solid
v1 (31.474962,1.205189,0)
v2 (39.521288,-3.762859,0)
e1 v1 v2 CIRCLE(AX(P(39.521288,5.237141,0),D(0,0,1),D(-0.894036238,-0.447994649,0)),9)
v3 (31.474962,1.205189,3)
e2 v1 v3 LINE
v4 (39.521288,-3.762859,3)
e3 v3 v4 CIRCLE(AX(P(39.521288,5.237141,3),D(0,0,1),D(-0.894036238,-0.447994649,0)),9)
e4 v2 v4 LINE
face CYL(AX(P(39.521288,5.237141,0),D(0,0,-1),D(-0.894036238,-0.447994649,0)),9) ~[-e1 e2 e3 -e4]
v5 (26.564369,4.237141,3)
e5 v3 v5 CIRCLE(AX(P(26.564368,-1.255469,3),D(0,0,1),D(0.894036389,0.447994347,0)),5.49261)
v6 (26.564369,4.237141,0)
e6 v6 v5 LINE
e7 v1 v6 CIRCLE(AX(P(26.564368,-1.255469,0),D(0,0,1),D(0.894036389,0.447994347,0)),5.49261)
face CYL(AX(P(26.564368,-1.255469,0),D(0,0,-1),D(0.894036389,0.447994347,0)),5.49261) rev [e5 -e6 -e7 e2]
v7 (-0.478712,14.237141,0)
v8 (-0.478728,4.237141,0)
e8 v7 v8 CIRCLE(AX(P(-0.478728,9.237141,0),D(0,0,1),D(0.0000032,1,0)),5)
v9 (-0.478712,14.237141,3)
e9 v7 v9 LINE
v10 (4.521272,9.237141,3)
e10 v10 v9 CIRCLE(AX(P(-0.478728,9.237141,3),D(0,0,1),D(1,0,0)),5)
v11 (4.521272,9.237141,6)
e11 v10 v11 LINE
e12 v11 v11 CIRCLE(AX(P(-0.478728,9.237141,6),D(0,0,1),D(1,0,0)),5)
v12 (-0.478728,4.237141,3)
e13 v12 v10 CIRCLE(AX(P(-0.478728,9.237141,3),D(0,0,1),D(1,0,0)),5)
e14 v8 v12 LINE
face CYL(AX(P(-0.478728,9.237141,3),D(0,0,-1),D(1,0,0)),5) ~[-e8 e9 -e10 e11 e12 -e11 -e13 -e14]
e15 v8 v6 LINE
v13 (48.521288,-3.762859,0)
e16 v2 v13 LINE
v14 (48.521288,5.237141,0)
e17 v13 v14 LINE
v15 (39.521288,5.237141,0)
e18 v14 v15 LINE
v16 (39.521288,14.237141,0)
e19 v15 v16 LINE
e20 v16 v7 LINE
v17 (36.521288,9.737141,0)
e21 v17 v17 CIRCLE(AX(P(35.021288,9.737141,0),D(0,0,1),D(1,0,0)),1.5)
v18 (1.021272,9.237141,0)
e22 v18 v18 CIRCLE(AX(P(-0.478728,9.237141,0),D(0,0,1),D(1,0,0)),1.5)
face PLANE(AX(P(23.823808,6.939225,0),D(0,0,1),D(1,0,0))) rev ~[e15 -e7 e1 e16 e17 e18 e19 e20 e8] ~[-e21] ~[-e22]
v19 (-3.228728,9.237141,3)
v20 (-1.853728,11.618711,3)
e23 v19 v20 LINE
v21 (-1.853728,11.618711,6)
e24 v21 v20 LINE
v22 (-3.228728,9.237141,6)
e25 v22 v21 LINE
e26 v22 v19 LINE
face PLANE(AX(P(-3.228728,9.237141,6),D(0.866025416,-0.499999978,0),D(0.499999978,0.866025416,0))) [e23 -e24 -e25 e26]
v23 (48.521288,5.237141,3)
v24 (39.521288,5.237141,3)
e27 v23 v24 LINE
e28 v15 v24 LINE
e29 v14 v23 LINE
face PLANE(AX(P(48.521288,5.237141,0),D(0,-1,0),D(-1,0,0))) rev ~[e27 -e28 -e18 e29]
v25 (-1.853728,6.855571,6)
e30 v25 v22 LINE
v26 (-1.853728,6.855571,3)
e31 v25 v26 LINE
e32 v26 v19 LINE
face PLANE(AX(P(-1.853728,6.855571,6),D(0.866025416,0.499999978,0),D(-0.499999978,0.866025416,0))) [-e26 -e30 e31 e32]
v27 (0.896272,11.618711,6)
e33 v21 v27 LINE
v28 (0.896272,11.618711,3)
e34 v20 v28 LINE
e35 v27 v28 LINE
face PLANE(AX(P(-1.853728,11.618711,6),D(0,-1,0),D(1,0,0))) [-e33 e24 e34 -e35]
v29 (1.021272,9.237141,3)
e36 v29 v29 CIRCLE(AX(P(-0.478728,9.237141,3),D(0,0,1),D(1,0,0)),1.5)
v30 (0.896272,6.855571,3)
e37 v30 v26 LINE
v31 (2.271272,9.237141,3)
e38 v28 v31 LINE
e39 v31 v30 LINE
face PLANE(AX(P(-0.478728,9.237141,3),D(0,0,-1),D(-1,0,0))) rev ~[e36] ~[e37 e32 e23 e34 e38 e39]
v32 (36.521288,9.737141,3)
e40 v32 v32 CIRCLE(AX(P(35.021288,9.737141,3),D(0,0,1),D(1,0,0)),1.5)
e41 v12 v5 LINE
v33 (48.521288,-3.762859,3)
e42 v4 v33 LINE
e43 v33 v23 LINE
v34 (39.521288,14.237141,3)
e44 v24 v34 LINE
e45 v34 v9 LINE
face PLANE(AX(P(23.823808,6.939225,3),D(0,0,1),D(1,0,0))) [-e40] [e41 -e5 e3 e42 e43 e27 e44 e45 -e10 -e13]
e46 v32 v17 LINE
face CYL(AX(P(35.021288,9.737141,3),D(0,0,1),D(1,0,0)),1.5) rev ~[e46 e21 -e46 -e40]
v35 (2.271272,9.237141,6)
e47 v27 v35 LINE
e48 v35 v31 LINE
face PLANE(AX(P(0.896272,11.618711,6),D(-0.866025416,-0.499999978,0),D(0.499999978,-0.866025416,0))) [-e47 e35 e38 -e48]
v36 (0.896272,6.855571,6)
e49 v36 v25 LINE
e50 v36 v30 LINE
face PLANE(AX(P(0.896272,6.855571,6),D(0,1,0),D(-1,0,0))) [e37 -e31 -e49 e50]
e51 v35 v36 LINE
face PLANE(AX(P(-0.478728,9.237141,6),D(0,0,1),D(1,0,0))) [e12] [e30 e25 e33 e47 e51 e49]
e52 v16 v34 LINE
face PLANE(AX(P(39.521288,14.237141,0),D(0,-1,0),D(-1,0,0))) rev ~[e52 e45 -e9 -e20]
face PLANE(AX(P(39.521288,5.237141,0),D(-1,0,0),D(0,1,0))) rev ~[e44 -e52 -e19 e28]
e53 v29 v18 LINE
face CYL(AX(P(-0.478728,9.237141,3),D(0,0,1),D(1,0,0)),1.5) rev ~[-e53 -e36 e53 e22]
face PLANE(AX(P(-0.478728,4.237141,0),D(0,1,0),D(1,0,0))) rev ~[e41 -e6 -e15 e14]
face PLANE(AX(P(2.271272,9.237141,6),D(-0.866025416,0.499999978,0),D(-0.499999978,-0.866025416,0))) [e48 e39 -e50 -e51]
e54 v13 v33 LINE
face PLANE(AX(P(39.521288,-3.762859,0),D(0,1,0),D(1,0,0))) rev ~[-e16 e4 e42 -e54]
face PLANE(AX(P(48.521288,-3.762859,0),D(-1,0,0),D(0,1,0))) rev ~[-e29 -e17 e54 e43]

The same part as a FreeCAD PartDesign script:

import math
import FreeCAD as App
import Part
import Sketcher
Q = App.Units.Quantity

doc = App.newDocument("Part")
body = doc.addObject("PartDesign::Body", "Body")

# Sketch on XY plane
sketch1 = doc.addObject("Sketcher::SketchObject", "Sketch")
body.addObject(sketch1)
sketch1.AttachmentSupport = (doc.XY_Plane, [""])
sketch1.MapMode = "FlatFace"
sketch1.addGeometry([
    Part.LineSegment(App.Vector(48.521288, 5.237141, 0), App.Vector(39.521288, 5.237141, 0)),  # 0
    Part.LineSegment(App.Vector(39.521288, 5.237141, 0), App.Vector(39.521288, 14.237141, 0)),  # 1
    Part.LineSegment(App.Vector(39.521288, 14.237141, 0), App.Vector(-0.478712, 14.237141, 0)),  # 2
    Part.ArcOfCircle(Part.Circle(App.Vector(-0.478728, 9.237141, 0), App.Vector(0, 0, 1), 5), math.radians(89.999817), math.radians(270)),  # 3
    Part.LineSegment(App.Vector(-0.478728, 4.237141, 0), App.Vector(26.564369, 4.237141, 0)),  # 4
    Part.ArcOfCircle(Part.Circle(App.Vector(26.564368, -1.255469, 0), App.Vector(0, 0, 1), 5.49261), math.radians(26.615076), math.radians(89.999994)),  # 5
    Part.ArcOfCircle(Part.Circle(App.Vector(39.521288, 5.237141, 0), App.Vector(0, 0, 1), 9), math.radians(-153.384905), math.radians(-89.999999)),  # 6
    Part.LineSegment(App.Vector(39.521288, -3.762859, 0), App.Vector(48.521288, -3.762859, 0)),  # 7
    Part.LineSegment(App.Vector(48.521288, -3.762859, 0), App.Vector(48.521288, 5.237141, 0)),  # 8
], False)
sketch1.addConstraint([
    Sketcher.Constraint("Coincident", 0, 2, 1, 1),
    Sketcher.Constraint("Coincident", 1, 2, 2, 1),
    Sketcher.Constraint("Coincident", 2, 2, 3, 1),
    Sketcher.Constraint("Tangent", 3, 2, 4, 1),
    Sketcher.Constraint("Tangent", 4, 2, 5, 2),
    Sketcher.Constraint("Tangent", 5, 1, 6, 1),
    Sketcher.Constraint("Tangent", 6, 2, 7, 1),
    Sketcher.Constraint("Coincident", 7, 2, 8, 1),
    Sketcher.Constraint("Coincident", 8, 2, 0, 1),
    Sketcher.Constraint("Horizontal", 0),
    Sketcher.Constraint("Vertical", 1),
    Sketcher.Constraint("Horizontal", 2),
    Sketcher.Constraint("Horizontal", 4),
    Sketcher.Constraint("Horizontal", 7),
    Sketcher.Constraint("Vertical", 8),
    Sketcher.Constraint("Coincident", 0, 2, 6, 3),
    Sketcher.Constraint("Equal", 7, 1),
    Sketcher.Constraint("Equal", 1, 8),
    Sketcher.Constraint("Radius", 3, 5.0),
    Sketcher.Constraint("Radius", 6, 9.0),
    Sketcher.Constraint("DistanceX", 2, 2, 2, 1, 40.0),
    Sketcher.Constraint("Radius", 5, 5.49261),
    Sketcher.Constraint("DistanceX", 4, 1, 4, 2, 27.043097),
    Sketcher.Constraint("DistanceY", -1, 1, 3, 3, 9.237141),
    Sketcher.Constraint("DistanceX", -1, 1, 5, 3, 26.564368),
])
pad1 = doc.addObject("PartDesign::Pad", "Pad")
body.addObject(pad1)
pad1.Profile = sketch1
pad1.Length = 3

# Sketch on XY plane
sketch2 = doc.addObject("Sketcher::SketchObject", "Sketch001")
body.addObject(sketch2)
sketch2.AttachmentSupport = (doc.XY_Plane, [""])
sketch2.MapMode = "FlatFace"
sketch2.AttachmentOffset = App.Placement(App.Vector(0, 0, 3), App.Rotation())
sketch2.addGeometry(Part.Circle(App.Vector(35.021288, 9.737141, 0), App.Vector(0, 0, 1), 1.5), False)
sketch2.addConstraint([
    Sketcher.Constraint("Diameter", 0, 3.0),
    Sketcher.Constraint("DistanceY", -1, 1, 0, 3, 9.737141),
    Sketcher.Constraint("DistanceX", -1, 1, 0, 3, 35.021288),
])
pocket1 = doc.addObject("PartDesign::Pocket", "Pocket")
body.addObject(pocket1)
pocket1.Profile = sketch2
pocket1.Type = "ThroughAll"

# Sketch on XY plane
sketch3 = doc.addObject("Sketcher::SketchObject", "Sketch002")
body.addObject(sketch3)
sketch3.AttachmentSupport = (doc.XY_Plane, [""])
sketch3.MapMode = "FlatFace"
sketch3.AttachmentOffset = App.Placement(App.Vector(0, 0, 3), App.Rotation())
sketch3.addGeometry(Part.Circle(App.Vector(-0.478728, 9.237141, 0), App.Vector(0, 0, 1), 5), False)
sketch3.addConstraint([
    Sketcher.Constraint("Diameter", 0, 10.0),
    Sketcher.Constraint("DistanceY", -1, 1, 0, 3, 9.237141),
    Sketcher.Constraint("DistanceX", 0, 3, -1, 1, 0.478728),
])
pad2 = doc.addObject("PartDesign::Pad", "Pad001")
body.addObject(pad2)
pad2.Profile = sketch3
pad2.Length = 3

# Sketch on XY plane
sketch4 = doc.addObject("Sketcher::SketchObject", "Sketch003")
body.addObject(sketch4)
sketch4.AttachmentSupport = (doc.XY_Plane, [""])
sketch4.MapMode = "FlatFace"
sketch4.AttachmentOffset = App.Placement(App.Vector(0, 0, 6), App.Rotation())
sketch4.addGeometry([
    Part.LineSegment(App.Vector(0.896272, 11.618711, 0), App.Vector(-1.853728, 11.618711, 0)),  # 0
    Part.LineSegment(App.Vector(-1.853728, 11.618711, 0), App.Vector(-3.228728, 9.237141, 0)),  # 1
    Part.LineSegment(App.Vector(-3.228728, 9.237141, 0), App.Vector(-1.853728, 6.855571, 0)),  # 2
    Part.LineSegment(App.Vector(-1.853728, 6.855571, 0), App.Vector(0.896272, 6.855571, 0)),  # 3
    Part.LineSegment(App.Vector(0.896272, 6.855571, 0), App.Vector(2.271272, 9.237141, 0)),  # 4
    Part.LineSegment(App.Vector(2.271272, 9.237141, 0), App.Vector(0.896272, 11.618711, 0)),  # 5
], False)
sketch4.addConstraint([
    Sketcher.Constraint("Coincident", 0, 2, 1, 1),
    Sketcher.Constraint("Coincident", 1, 2, 2, 1),
    Sketcher.Constraint("Coincident", 2, 2, 3, 1),
    Sketcher.Constraint("Coincident", 3, 2, 4, 1),
    Sketcher.Constraint("Coincident", 4, 2, 5, 1),
    Sketcher.Constraint("Coincident", 5, 2, 0, 1),
    Sketcher.Constraint("Horizontal", 0),
    Sketcher.Constraint("Horizontal", 3),
    Sketcher.Constraint("Parallel", 1, 4),
    Sketcher.Constraint("Parallel", 2, 5),
    Sketcher.Constraint("Horizontal", 1, 2, 4, 2),
    Sketcher.Constraint("Vertical", 0, 2, 2, 2),
    Sketcher.Constraint("Vertical", 3, 2, 5, 2),
    Sketcher.Constraint("Angle", 1, Q("-119.999999 deg")),
    Sketcher.Constraint("DistanceX", 0, 2, 0, 1, 2.75),
    Sketcher.Constraint("DistanceX", 1, 2, 4, 2, 5.5),
    Sketcher.Constraint("DistanceY", -1, 1, 0, 2, 11.618711),
    Sketcher.Constraint("DistanceX", -1, 1, 3, 2, 0.896272),
])
pocket2 = doc.addObject("PartDesign::Pocket", "Pocket001")
body.addObject(pocket2)
pocket2.Profile = sketch4
pocket2.Length = 3

# Sketch on XY plane
sketch5 = doc.addObject("Sketcher::SketchObject", "Sketch004")
body.addObject(sketch5)
sketch5.AttachmentSupport = (doc.XY_Plane, [""])
sketch5.MapMode = "FlatFace"
sketch5.AttachmentOffset = App.Placement(App.Vector(0, 0, 3), App.Rotation())
sketch5.addGeometry(Part.Circle(App.Vector(-0.478728, 9.237141, 0), App.Vector(0, 0, 1), 1.5), False)
sketch5.addConstraint([
    Sketcher.Constraint("Diameter", 0, 3.0),
    Sketcher.Constraint("DistanceY", -1, 1, 0, 3, 9.237141),
    Sketcher.Constraint("DistanceX", 0, 3, -1, 1, 0.478728),
])
pocket3 = doc.addObject("PartDesign::Pocket", "Pocket002")
body.addObject(pocket3)
pocket3.Profile = sketch5
pocket3.Type = "ThroughAll"

doc.recompute()
